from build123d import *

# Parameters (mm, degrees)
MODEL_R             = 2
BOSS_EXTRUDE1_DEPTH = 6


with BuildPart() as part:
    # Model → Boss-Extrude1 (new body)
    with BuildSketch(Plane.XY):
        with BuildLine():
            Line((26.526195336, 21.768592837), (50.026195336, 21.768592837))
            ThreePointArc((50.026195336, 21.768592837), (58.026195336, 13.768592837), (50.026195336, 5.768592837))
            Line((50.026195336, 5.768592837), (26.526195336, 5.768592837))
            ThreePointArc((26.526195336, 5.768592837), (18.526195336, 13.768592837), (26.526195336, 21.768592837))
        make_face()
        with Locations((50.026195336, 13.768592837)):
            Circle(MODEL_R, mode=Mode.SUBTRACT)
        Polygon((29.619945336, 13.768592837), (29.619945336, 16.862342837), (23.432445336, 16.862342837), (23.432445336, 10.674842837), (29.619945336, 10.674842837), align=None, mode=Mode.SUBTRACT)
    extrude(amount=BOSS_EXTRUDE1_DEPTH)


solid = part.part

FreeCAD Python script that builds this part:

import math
import FreeCAD as App
import Part
import Sketcher
from FreeCAD import Vector
Q = App.Units.Quantity


def add_polygon(sketch, points):
    """Adds a closed chain of lines whose ends are joined by coincident constraints."""
    first, n = sketch.GeometryCount, len(points)
    for a, b in zip(points, points[1:] + points[:1]):
        sketch.addGeometry(Part.LineSegment(App.Vector(*a, 0), App.Vector(*b, 0)), False)
    for i in range(n):
        sketch.addConstraint(Sketcher.Constraint("Coincident", first + i, 2, first + (i + 1) % n, 1))

doc = App.newDocument("Part")
body = doc.addObject("PartDesign::Body", "Body")

sketch1 = doc.addObject("Sketcher::SketchObject", "Sketch")
body.addObject(sketch1)
sketch1.AttachmentSupport = (doc.XY_Plane, [""])
sketch1.MapMode = "FlatFace"
sketch1.addGeometry(Part.LineSegment(Vector(50, 21.8, 0), Vector(26.5, 21.8, 0)), False)
sketch1.addGeometry(Part.ArcOfCircle(Part.Circle(Vector(26.5, 13.8, 0), Vector(0, 0, 1), 8), math.radians(90), math.radians(270)), False)
sketch1.addGeometry(Part.LineSegment(Vector(26.5, 5.8, 0), Vector(50, 5.8, 0)), False)
sketch1.addGeometry(Part.ArcOfCircle(Part.Circle(Vector(50, 13.8, 0), Vector(0, 0, 1), 8), math.radians(-90), math.radians(90)), False)
sketch1.addGeometry(Part.Circle(Vector(50, 13.8, 0), Vector(0, 0, 1), 2), False)
add_polygon(sketch1, [(29.6, 10.7), (23.4, 10.7), (23.4, 16.9), (29.6, 16.9)])
sketch1.addConstraint([
    Sketcher.Constraint("Tangent", 0, 2, 1, 1),
    Sketcher.Constraint("Tangent", 1, 2, 2, 1),
    Sketcher.Constraint("Tangent", 2, 2, 3, 1),
    Sketcher.Constraint("Tangent", 3, 2, 0, 1),
    Sketcher.Constraint("Horizontal", 0),
    Sketcher.Constraint("Horizontal", 2),
    Sketcher.Constraint("Horizontal", 5),
    Sketcher.Constraint("Vertical", 6),
    Sketcher.Constraint("Horizontal", 7),
    Sketcher.Constraint("Vertical", 8),
    Sketcher.Constraint("Coincident", 4, 3, 3, 3),
    Sketcher.Constraint("Equal", 7, 6),
    Sketcher.Constraint("Diameter", 4, Q("4 mm")),
    Sketcher.Constraint("Radius", 1, Q("8 mm")),
    Sketcher.Constraint("DistanceX", 0, 2, 0, 1, Q("23.5 mm")),
    Sketcher.Constraint("DistanceX", 5, 2, 5, 1, Q("6.1875 mm")),
    Sketcher.Constraint("DistanceX", 5, 2, 1, 3, Q("3.09375 mm")),
    Sketcher.Constraint("DistanceY", 5, 2, 1, 3, Q("3.09375 mm")),
    Sketcher.Constraint("DistanceX", -1, 1, 1, 3, Q("26.526195 mm")),
    Sketcher.Constraint("DistanceY", -1, 1, 1, 3, Q("13.768593 mm")),
])
pad1 = doc.addObject("PartDesign::Pad", "Pad")
body.addObject(pad1)
pad1.Profile = sketch1
pad1.Length = 6

doc.recompute()
